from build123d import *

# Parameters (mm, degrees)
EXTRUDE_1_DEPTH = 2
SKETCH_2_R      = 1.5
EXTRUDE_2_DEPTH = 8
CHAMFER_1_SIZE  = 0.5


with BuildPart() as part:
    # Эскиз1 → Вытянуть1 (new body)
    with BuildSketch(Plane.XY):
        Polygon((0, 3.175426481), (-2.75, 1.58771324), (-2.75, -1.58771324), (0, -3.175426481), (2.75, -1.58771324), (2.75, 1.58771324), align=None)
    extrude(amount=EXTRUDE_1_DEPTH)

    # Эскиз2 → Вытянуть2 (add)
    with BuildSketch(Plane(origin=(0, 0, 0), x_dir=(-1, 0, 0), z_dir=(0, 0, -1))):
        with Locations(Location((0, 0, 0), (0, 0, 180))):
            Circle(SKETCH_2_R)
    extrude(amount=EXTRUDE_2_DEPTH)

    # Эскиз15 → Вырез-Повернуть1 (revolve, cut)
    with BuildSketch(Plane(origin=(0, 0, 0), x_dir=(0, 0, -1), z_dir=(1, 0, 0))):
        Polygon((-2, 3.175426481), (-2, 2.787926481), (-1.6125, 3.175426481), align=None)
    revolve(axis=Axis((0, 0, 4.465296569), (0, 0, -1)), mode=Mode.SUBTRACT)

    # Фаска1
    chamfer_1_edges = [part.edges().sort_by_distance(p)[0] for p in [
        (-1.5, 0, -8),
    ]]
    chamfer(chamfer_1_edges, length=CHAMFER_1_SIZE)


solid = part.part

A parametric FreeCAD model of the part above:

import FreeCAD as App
import Part
import Sketcher
Q = App.Units.Quantity


def edges_at(feature, points):
    """Names of the edges that pass closest to the given points."""
    edges = feature.Shape.Edges
    near = lambda p: min(range(len(edges)), key=lambda i: edges[i].distToShape(Part.Vertex(*p))[0])
    return sorted({f"Edge{near(p) + 1}" for p in points})

doc = App.newDocument("Part")
body = doc.addObject("PartDesign::Body", "Body")

# Sketch on XY plane
sketch1 = doc.addObject("Sketcher::SketchObject", "Sketch")
body.addObject(sketch1)
sketch1.AttachmentSupport = (doc.XY_Plane, [""])
sketch1.MapMode = "FlatFace"
sketch1.addGeometry(Part.LineSegment(App.Vector(0, 3.2, 0), App.Vector(-2.8, 1.6, 0)), False)
sketch1.addGeometry(Part.LineSegment(App.Vector(-2.8, 1.6, 0), App.Vector(-2.8, -1.6, 0)), False)
sketch1.addGeometry(Part.LineSegment(App.Vector(-2.8, -1.6, 0), App.Vector(0, -3.2, 0)), False)
sketch1.addGeometry(Part.LineSegment(App.Vector(0, -3.2, 0), App.Vector(2.8, -1.6, 0)), False)
sketch1.addGeometry(Part.LineSegment(App.Vector(2.8, -1.6, 0), App.Vector(2.8, 1.6, 0)), False)
sketch1.addGeometry(Part.LineSegment(App.Vector(2.8, 1.6, 0), App.Vector(0, 3.2, 0)), False)
sketch1.addConstraint(Sketcher.Constraint("Coincident", 0, 2, 1, 1))
sketch1.addConstraint(Sketcher.Constraint("Coincident", 1, 2, 2, 1))
sketch1.addConstraint(Sketcher.Constraint("Coincident", 2, 2, 3, 1))
sketch1.addConstraint(Sketcher.Constraint("Coincident", 3, 2, 4, 1))
sketch1.addConstraint(Sketcher.Constraint("Coincident", 4, 2, 5, 1))
sketch1.addConstraint(Sketcher.Constraint("Coincident", 5, 2, 0, 1))
sketch1.addConstraint(Sketcher.Constraint("Vertical", 1))
sketch1.addConstraint(Sketcher.Constraint("Vertical", 4))
sketch1.addConstraint(Sketcher.Constraint("Symmetric", 0, 2, 3, 2, -1, 1))
sketch1.addConstraint(Sketcher.Constraint("Symmetric", 2, 2, 5, 2, -1, 1))
sketch1.addConstraint(Sketcher.Constraint("PointOnObject", 2, 2, -2))
sketch1.addConstraint(Sketcher.Constraint("Parallel", 2, 5))
sketch1.addConstraint(Sketcher.Constraint("Horizontal", 1, 2, 3, 2))
sketch1.addConstraint(Sketcher.Constraint("Angle", 0, Q("-150 deg")))
sketch1.addConstraint(Sketcher.Constraint("DistanceX", 1, 2, 3, 2, Q("5.5 mm")))
sketch1.addConstraint(Sketcher.Constraint("DistanceY", 1, 2, 1, 1, Q("3.175426 mm")))
pad1 = doc.addObject("PartDesign::Pad", "Pad")
body.addObject(pad1)
pad1.Profile = sketch1
pad1.Length = 2

# Sketch on XY plane
sketch2 = doc.addObject("Sketcher::SketchObject", "Sketch001")
body.addObject(sketch2)
sketch2.AttachmentSupport = (doc.XY_Plane, [""])
sketch2.MapMode = "FlatFace"
sketch2.addGeometry(Part.Circle(App.Vector(0, 0, 0), App.Vector(0, 0, 1), 1.5), False)
sketch2.addConstraint(Sketcher.Constraint("Coincident", 0, 3, -1, 1))
sketch2.addConstraint(Sketcher.Constraint("Diameter", 0, Q("3 mm")))
pad2 = doc.addObject("PartDesign::Pad", "Pad001")
body.addObject(pad2)
pad2.Profile = sketch2
pad2.Length = 8
pad2.Reversed = True

# Sketch on YZ plane
sketch3 = doc.addObject("Sketcher::SketchObject", "Sketch002")
body.addObject(sketch3)
sketch3.AttachmentSupport = (doc.YZ_Plane, [""])
sketch3.MapMode = "FlatFace"
sketch3.addGeometry(Part.LineSegment(App.Vector(3.18, 2, 0), App.Vector(2.79, 2, 0)), False)
sketch3.addGeometry(Part.LineSegment(App.Vector(2.79, 2, 0), App.Vector(3.18, 1.61, 0)), False)
sketch3.addGeometry(Part.LineSegment(App.Vector(3.18, 1.61, 0), App.Vector(3.18, 2, 0)), False)
sketch3.addConstraint(Sketcher.Constraint("Coincident", 0, 2, 1, 1))
sketch3.addConstraint(Sketcher.Constraint("Coincident", 1, 2, 2, 1))
sketch3.addConstraint(Sketcher.Constraint("Coincident", 2, 2, 0, 1))
sketch3.addConstraint(Sketcher.Constraint("Horizontal", 0))
sketch3.addConstraint(Sketcher.Constraint("Vertical", 2))
sketch3.addConstraint(Sketcher.Constraint("Equal", 0, 2))
sketch3.addConstraint(Sketcher.Constraint("DistanceY", -1, 1, 0, 2, Q("2 mm")))
sketch3.addConstraint(Sketcher.Constraint("DistanceX", 0, 2, 0, 1, Q("0.3875 mm")))
sketch3.addConstraint(Sketcher.Constraint("DistanceX", -1, 1, 0, 2, Q("2.787926 mm")))
groove = doc.addObject("PartDesign::Groove", "Groove")
body.addObject(groove)
groove.Profile = sketch3
groove.ReferenceAxis = (sketch3, ["V_Axis"])
groove.Angle = 360
doc.recompute()

chamfer = doc.addObject("PartDesign::Chamfer", "Chamfer")
body.addObject(chamfer)
chamfer.Base = (groove, edges_at(groove, [(-1.5, 0, -8)]))
chamfer.Size = 0.5

doc.recompute()
